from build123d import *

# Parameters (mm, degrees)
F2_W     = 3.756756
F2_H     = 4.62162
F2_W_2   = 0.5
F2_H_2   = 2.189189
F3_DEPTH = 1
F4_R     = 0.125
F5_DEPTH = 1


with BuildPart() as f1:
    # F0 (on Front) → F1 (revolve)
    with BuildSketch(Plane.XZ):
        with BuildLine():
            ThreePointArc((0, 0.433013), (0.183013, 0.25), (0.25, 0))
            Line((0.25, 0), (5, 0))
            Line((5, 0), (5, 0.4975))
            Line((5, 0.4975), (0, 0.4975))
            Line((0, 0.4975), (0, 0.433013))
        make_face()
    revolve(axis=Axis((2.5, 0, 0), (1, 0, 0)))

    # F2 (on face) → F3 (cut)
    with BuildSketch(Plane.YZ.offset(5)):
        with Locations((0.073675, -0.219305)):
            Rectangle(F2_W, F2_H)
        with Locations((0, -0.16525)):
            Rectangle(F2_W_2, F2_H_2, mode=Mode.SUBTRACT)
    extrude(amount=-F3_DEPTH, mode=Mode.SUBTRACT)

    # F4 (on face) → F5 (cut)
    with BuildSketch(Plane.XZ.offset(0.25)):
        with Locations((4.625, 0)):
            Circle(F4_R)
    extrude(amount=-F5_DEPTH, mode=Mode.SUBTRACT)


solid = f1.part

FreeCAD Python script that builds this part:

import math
import FreeCAD as App
import Part
import Sketcher
from FreeCAD import Vector


def add_polygon(sketch, points):
    """Adds a closed chain of lines whose ends are joined by coincident constraints."""
    first, n = sketch.GeometryCount, len(points)
    for a, b in zip(points, points[1:] + points[:1]):
        sketch.addGeometry(Part.LineSegment(App.Vector(*a, 0), App.Vector(*b, 0)), False)
    for i in range(n):
        sketch.addConstraint(Sketcher.Constraint("Coincident", first + i, 2, first + (i + 1) % n, 1))

doc = App.newDocument("Part")
body = doc.addObject("PartDesign::Body", "Body")

# Sketch on XZ plane
sketch1 = doc.addObject("Sketcher::SketchObject", "Sketch")
body.addObject(sketch1)
sketch1.AttachmentSupport = (doc.XZ_Plane, [""])
sketch1.MapMode = "FlatFace"
sketch1.addGeometry([
    Part.ArcOfCircle(Part.Circle(Vector(-0.25, 0, 0), Vector(0, 0, 1), 0.5), math.radians(0), math.radians(60)),  # 0
    Part.LineSegment(Vector(0.25, 0, 0), Vector(5, 0, 0)),  # 1
    Part.LineSegment(Vector(5, 0, 0), Vector(5, 0.5, 0)),  # 2
    Part.LineSegment(Vector(5, 0.5, 0), Vector(0, 0.5, 0)),  # 3
    Part.LineSegment(Vector(0, 0.5, 0), Vector(0, 0.43, 0)),  # 4
], False)
sketch1.addConstraint([
    Sketcher.Constraint("Coincident", 0, 1, 1, 1),
    Sketcher.Constraint("Coincident", 1, 2, 2, 1),
    Sketcher.Constraint("Coincident", 2, 2, 3, 1),
    Sketcher.Constraint("Coincident", 3, 2, 4, 1),
    Sketcher.Constraint("Coincident", 4, 2, 0, 2),
    Sketcher.Constraint("Horizontal", 1),
    Sketcher.Constraint("Vertical", 2),
    Sketcher.Constraint("Horizontal", 3),
    Sketcher.Constraint("Vertical", 4),
    Sketcher.Constraint("PointOnObject", 0, 3, -1),
    Sketcher.Constraint("PointOnObject", 0, 1, -1),
    Sketcher.Constraint("PointOnObject", 3, 2, -2),
    Sketcher.Constraint("Radius", 0, 0.499999),
    Sketcher.Constraint("DistanceX", 3, 2, 3, 1, 5.0),
    Sketcher.Constraint("DistanceX", 1, 1, 1, 2, 4.75),
    Sketcher.Constraint("DistanceY", 2, 1, 2, 2, 0.4975),
])
revolution = doc.addObject("PartDesign::Revolution", "Revolution")
body.addObject(revolution)
revolution.Profile = sketch1
revolution.ReferenceAxis = (sketch1, ["H_Axis"])
revolution.Angle = 360

# Sketch on YZ plane
sketch2 = doc.addObject("Sketcher::SketchObject", "Sketch001")
body.addObject(sketch2)
sketch2.AttachmentSupport = (doc.YZ_Plane, [""])
sketch2.MapMode = "FlatFace"
sketch2.AttachmentOffset = App.Placement(Vector(0, 0, 5), App.Rotation())
add_polygon(sketch2, [(-1.8, 2.1), (-1.8, -2.5), (2, -2.5), (2, 2.1)])  # lines 0-3
add_polygon(sketch2, [(0.2, -1.3), (-0.2, -1.3), (-0.2, 0.9), (0.2, 0.9)])  # lines 4-7
sketch2.addConstraint([
    Sketcher.Constraint("Vertical", 0),
    Sketcher.Constraint("Horizontal", 1),
    Sketcher.Constraint("Vertical", 2),
    Sketcher.Constraint("Horizontal", 3),
    Sketcher.Constraint("Horizontal", 4),
    Sketcher.Constraint("Vertical", 5),
    Sketcher.Constraint("Horizontal", 6),
    Sketcher.Constraint("Vertical", 7),
    Sketcher.Constraint("DistanceX", 4, 2, 4, 1, 0.5),
    Sketcher.Constraint("DistanceX", 4, 2, -1, 1, 0.25),
    Sketcher.Constraint("DistanceY", 0, 2, 0, 1, 4.62162),
    Sketcher.Constraint("DistanceY", 5, 1, 5, 2, 2.189189),
    Sketcher.Constraint("DistanceX", 1, 1, 1, 2, 3.756756),
    Sketcher.Constraint("DistanceY", 0, 2, 4, 2, 1.27027),
    Sketcher.Constraint("DistanceX", 0, 2, -1, 1, 1.804703),
    Sketcher.Constraint("DistanceY", 0, 2, -1, 1, 2.530115),
])
pocket1 = doc.addObject("PartDesign::Pocket", "Pocket")
body.addObject(pocket1)
pocket1.Profile = sketch2
pocket1.Length = 1

# Sketch on XZ plane
sketch3 = doc.addObject("Sketcher::SketchObject", "Sketch002")
body.addObject(sketch3)
sketch3.AttachmentSupport = (doc.XZ_Plane, [""])
sketch3.MapMode = "FlatFace"
sketch3.AttachmentOffset = App.Placement(Vector(0, 0, 0.25), App.Rotation())
sketch3.addGeometry(Part.Circle(Vector(4.62, 0, 0), Vector(0, 0, 1), 0.12), False)
sketch3.addConstraint([
    Sketcher.Constraint("PointOnObject", 0, 3, -1),
    Sketcher.Constraint("Diameter", 0, 0.25),
    Sketcher.Constraint("DistanceX", -1, 1, 0, 3, 4.625),
])
pocket2 = doc.addObject("PartDesign::Pocket", "Pocket001")
body.addObject(pocket2)
pocket2.Profile = sketch3
pocket2.Length = 1

doc.recompute()
